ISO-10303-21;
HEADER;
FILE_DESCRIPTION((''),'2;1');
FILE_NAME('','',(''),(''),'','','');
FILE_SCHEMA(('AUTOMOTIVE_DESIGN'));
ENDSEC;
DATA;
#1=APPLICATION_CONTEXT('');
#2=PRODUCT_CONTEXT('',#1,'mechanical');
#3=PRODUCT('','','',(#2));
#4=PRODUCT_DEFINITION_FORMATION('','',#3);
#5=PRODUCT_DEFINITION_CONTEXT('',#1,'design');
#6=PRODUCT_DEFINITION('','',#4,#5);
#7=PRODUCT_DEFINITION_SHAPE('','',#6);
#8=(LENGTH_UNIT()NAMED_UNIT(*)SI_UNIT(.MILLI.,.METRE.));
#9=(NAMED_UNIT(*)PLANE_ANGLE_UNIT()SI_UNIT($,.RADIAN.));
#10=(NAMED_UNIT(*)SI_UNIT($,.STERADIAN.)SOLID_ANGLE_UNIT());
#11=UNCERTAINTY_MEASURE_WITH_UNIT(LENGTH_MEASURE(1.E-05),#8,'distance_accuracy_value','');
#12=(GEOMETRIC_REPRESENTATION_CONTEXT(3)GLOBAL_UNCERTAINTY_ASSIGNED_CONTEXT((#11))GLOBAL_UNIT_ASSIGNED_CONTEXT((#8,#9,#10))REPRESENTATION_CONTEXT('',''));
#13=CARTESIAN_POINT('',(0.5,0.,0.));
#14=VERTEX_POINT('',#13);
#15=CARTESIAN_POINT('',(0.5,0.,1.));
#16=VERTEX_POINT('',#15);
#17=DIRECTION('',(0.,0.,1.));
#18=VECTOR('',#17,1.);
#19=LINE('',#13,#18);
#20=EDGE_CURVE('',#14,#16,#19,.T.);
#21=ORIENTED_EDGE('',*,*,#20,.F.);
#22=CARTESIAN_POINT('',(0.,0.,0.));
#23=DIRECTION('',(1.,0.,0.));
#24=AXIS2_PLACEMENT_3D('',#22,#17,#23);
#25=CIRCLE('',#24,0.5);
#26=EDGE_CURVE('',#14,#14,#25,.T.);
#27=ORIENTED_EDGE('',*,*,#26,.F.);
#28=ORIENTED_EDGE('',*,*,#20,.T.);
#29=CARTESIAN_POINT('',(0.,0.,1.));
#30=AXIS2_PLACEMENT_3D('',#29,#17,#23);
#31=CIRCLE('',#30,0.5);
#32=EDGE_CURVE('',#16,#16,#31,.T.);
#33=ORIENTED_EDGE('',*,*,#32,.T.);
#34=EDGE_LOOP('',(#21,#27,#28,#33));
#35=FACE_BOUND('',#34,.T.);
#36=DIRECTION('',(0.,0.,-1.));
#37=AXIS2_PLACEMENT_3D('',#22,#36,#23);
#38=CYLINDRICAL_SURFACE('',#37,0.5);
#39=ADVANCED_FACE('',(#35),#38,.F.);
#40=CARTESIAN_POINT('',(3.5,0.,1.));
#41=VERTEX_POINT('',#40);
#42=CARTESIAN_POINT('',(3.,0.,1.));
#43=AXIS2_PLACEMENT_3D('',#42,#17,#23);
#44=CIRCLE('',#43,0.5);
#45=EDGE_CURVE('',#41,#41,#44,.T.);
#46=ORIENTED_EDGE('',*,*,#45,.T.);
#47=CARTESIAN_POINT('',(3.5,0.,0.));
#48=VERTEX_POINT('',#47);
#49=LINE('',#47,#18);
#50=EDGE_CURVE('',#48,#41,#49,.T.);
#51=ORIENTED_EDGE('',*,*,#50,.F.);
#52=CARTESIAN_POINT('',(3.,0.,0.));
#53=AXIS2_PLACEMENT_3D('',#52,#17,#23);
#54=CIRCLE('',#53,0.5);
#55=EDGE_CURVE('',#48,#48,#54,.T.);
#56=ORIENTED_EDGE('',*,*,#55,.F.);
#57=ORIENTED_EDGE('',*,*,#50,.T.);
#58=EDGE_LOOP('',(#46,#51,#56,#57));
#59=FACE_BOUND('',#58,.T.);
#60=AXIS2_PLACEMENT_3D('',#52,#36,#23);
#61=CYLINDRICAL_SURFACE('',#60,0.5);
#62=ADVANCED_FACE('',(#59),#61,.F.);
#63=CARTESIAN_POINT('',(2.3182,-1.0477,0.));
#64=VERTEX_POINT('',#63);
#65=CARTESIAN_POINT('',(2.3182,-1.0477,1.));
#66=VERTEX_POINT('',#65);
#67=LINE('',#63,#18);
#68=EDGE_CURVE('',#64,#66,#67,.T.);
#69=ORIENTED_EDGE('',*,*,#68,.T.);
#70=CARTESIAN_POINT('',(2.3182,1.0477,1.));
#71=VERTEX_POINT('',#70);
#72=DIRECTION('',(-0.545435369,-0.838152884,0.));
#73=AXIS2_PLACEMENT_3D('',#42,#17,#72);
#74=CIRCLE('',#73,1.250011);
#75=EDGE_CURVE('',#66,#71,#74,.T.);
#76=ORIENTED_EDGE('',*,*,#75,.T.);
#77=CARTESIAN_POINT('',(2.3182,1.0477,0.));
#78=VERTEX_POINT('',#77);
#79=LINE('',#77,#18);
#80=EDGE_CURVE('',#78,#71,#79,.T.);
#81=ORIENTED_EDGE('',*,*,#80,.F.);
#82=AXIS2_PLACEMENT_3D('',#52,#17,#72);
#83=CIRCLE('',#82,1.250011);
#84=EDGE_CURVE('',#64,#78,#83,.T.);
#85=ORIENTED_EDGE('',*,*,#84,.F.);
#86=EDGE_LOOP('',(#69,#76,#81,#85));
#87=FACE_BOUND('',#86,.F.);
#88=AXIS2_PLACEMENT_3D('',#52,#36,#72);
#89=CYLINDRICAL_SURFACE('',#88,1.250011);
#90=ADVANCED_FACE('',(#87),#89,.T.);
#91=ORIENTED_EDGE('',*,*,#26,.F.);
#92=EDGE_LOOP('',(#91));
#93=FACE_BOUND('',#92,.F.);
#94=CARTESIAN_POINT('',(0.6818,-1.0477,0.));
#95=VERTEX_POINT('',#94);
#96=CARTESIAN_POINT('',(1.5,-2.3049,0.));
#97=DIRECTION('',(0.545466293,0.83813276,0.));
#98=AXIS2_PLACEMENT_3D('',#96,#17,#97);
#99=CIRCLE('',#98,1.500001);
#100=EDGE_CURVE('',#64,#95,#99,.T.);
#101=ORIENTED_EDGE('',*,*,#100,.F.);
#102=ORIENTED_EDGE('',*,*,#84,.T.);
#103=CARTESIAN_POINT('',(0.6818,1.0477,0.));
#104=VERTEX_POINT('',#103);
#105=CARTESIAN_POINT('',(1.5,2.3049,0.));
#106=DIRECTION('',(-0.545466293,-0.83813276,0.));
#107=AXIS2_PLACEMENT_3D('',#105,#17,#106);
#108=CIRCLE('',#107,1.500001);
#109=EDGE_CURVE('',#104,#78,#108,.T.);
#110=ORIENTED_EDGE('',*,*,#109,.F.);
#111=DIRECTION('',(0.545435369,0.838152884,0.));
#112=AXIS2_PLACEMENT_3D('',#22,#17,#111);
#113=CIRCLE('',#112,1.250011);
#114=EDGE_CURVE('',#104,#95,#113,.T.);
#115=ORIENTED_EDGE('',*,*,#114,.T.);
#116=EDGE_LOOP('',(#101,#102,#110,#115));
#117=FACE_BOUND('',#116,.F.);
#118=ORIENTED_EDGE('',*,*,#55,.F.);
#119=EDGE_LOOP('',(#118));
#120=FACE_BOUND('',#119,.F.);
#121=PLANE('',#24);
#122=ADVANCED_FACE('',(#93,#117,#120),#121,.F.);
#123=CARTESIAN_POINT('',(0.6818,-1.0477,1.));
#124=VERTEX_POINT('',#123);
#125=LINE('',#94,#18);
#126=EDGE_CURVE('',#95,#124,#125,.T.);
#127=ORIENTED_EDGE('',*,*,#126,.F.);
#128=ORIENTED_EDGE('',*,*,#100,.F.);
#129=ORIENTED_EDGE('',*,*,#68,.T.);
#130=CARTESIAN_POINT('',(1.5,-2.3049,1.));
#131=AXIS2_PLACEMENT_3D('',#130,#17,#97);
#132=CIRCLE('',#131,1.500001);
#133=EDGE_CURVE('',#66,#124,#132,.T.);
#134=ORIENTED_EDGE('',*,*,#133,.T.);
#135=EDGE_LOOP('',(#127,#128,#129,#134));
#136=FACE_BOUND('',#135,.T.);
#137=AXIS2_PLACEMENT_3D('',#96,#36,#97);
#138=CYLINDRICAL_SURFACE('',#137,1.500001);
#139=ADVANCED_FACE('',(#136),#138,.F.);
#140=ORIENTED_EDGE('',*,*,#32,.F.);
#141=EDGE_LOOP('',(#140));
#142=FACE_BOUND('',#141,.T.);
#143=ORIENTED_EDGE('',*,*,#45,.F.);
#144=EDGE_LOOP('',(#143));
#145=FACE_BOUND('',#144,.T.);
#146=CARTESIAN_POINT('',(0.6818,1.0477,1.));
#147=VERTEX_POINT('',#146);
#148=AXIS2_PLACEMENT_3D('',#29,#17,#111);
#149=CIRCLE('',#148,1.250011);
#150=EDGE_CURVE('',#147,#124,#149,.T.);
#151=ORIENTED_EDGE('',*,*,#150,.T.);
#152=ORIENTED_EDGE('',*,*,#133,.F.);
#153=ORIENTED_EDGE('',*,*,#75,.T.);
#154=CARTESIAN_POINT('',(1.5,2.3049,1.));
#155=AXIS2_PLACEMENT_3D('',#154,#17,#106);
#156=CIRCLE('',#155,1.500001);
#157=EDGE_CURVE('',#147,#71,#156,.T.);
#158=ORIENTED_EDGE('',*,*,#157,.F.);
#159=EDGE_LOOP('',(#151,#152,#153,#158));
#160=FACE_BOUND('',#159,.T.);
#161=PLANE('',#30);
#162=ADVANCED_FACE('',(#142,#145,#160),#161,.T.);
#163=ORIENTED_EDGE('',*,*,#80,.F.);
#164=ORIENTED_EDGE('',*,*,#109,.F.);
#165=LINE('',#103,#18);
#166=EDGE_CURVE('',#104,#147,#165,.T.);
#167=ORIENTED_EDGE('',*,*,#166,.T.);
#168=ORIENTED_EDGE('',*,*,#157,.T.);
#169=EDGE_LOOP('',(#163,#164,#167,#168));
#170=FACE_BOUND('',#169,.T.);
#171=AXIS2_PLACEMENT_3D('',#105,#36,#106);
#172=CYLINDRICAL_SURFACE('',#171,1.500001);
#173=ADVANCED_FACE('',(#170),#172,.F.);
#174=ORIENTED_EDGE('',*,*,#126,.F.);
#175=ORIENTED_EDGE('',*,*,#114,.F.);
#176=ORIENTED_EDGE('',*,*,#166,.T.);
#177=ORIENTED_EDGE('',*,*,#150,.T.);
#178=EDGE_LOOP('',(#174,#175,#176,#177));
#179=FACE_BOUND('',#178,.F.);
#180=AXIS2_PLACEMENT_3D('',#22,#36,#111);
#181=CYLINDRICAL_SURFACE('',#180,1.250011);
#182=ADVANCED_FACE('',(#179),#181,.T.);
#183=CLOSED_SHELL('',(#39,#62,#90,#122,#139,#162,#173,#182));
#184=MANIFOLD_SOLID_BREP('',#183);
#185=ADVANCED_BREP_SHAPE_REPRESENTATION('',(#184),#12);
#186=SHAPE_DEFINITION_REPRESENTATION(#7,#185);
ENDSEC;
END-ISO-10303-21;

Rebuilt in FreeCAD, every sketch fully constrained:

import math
import FreeCAD as App
import Part
import Sketcher

doc = App.newDocument("Part")
body = doc.addObject("PartDesign::Body", "Body")

sketch1 = body.newObject("Sketcher::SketchObject", "Sketch")
sketch1.AttachmentSupport = (doc.getObject("XY_Plane"), [""])
sketch1.MapMode = "FlatFace"
sketch1.addGeometry([
    Part.ArcOfCircle(Part.Circle(App.Vector(1.5, 2.3, 0), App.Vector(0, 0, 1), 1.5), math.radians(-123), math.radians(-57)),
    Part.ArcOfCircle(Part.Circle(App.Vector(0, 0, 0), App.Vector(0, 0, 1), 1.3), math.radians(57), math.radians(303)),
    Part.ArcOfCircle(Part.Circle(App.Vector(1.5, -2.3, 0), App.Vector(0, 0, 1), 1.5), math.radians(57), math.radians(123)),
    Part.ArcOfCircle(Part.Circle(App.Vector(3, 0, 0), App.Vector(0, 0, 1), 1.3), math.radians(-123), math.radians(123)),
    Part.Circle(App.Vector(0, 0, 0), App.Vector(0, 0, 1), 0.5),
    Part.Circle(App.Vector(3, 0, 0), App.Vector(0, 0, 1), 0.5),
], False)
sketch1.addConstraint([
    Sketcher.Constraint("Tangent", 0, 1, 1, 1),
    Sketcher.Constraint("Tangent", 1, 2, 2, 2),
    Sketcher.Constraint("Tangent", 2, 1, 3, 1),
    Sketcher.Constraint("Tangent", 3, 2, 0, 2),
    Sketcher.Constraint("Coincident", 1, 3, -1, 1),
    Sketcher.Constraint("Coincident", 4, 3, -1, 1),
    Sketcher.Constraint("Coincident", 5, 3, 3, 3),
    Sketcher.Constraint("Equal", 0, 2),
    Sketcher.Constraint("Equal", 1, 3),
    Sketcher.Constraint("Equal", 4, 5),
    Sketcher.Constraint("PointOnObject", 3, 3, -1),
    Sketcher.Constraint("Diameter", 4, 1.0),
    Sketcher.Constraint("Radius", 0, 1.5),
    Sketcher.Constraint("Radius", 1, 1.25),
    Sketcher.Constraint("DistanceX", -1, 1, 3, 3, 3.0),
])
pad1 = body.newObject("PartDesign::Pad", "Pad")
pad1.Profile = sketch1
pad1.Length = 1

doc.recompute()
